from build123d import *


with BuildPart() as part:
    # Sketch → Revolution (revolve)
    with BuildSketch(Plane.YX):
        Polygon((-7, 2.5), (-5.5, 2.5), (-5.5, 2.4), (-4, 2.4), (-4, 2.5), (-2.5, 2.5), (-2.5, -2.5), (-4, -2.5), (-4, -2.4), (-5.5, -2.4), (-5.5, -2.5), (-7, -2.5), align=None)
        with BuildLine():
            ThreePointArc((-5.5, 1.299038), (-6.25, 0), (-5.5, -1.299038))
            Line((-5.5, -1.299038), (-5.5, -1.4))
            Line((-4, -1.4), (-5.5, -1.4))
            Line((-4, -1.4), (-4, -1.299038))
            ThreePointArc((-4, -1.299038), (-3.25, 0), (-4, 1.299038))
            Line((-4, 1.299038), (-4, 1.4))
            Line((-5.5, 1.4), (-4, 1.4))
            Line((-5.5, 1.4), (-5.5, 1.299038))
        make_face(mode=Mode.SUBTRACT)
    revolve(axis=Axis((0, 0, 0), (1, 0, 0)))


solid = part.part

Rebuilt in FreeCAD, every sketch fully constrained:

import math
import FreeCAD as App
import Part
import Sketcher

V = App.Vector
Q = App.Units.Quantity

doc = App.newDocument("Part")
body = doc.addObject("PartDesign::Body", "Body")

# Sketch on XY plane
sketch1 = body.newObject("Sketcher::SketchObject", "Sketch")
sketch1.AttachmentSupport = (doc.getObject("XY_Plane"), [""])
sketch1.MapMode = "FlatFace"
sketch1.addGeometry([
    Part.LineSegment(V(2.5, -5.5, 0), V(2.5, -7, 0)),  # 0
    Part.LineSegment(V(2.5, -7, 0), V(-2.5, -7, 0)),  # 1
    Part.LineSegment(V(-2.5, -7, 0), V(-2.5, -5.5, 0)),  # 2
    Part.LineSegment(V(-2.5, -5.5, 0), V(-2.4, -5.5, 0)),  # 3
    Part.LineSegment(V(-2.4, -5.5, 0), V(-2.4, -4, 0)),  # 4
    Part.LineSegment(V(-2.4, -4, 0), V(-2.5, -4, 0)),  # 5
    Part.LineSegment(V(-2.5, -4, 0), V(-2.5, -2.5, 0)),  # 6
    Part.LineSegment(V(-2.5, -2.5, 0), V(2.5, -2.5, 0)),  # 7
    Part.LineSegment(V(2.5, -2.5, 0), V(2.5, -4, 0)),  # 8
    Part.LineSegment(V(2.5, -4, 0), V(2.4, -4, 0)),  # 9
    Part.LineSegment(V(2.4, -4, 0), V(2.4, -5.5, 0)),  # 10
    Part.LineSegment(V(2.4, -5.5, 0), V(2.5, -5.5, 0)),  # 11
    Part.LineSegment(V(1.299038, -5.5, 0), V(1.4, -5.5, 0)),  # 12
    Part.LineSegment(V(1.4, -5.5, 0), V(1.4, -4, 0)),  # 13
    Part.LineSegment(V(1.4, -4, 0), V(1.299038, -4, 0)),  # 14
    Part.ArcOfCircle(Part.Circle(V(0, -4.75, 0), V(0, 0, 1), 1.5), math.radians(29.999996), math.radians(150.000004)),  # 15
    Part.LineSegment(V(-1.299038, -4, 0), V(-1.4, -4, 0)),  # 16
    Part.LineSegment(V(-1.4, -4, 0), V(-1.4, -5.5, 0)),  # 17
    Part.LineSegment(V(-1.4, -5.5, 0), V(-1.299038, -5.5, 0)),  # 18
    Part.ArcOfCircle(Part.Circle(V(0, -4.75, 0), V(0, 0, 1), 1.5), math.radians(-150.000004), math.radians(-29.999996)),  # 19
], False)
sketch1.addConstraint([
    Sketcher.Constraint("Coincident", 0, 2, 1, 1),
    Sketcher.Constraint("Coincident", 1, 2, 2, 1),
    Sketcher.Constraint("Coincident", 2, 2, 3, 1),
    Sketcher.Constraint("Coincident", 3, 2, 4, 1),
    Sketcher.Constraint("Coincident", 4, 2, 5, 1),
    Sketcher.Constraint("Coincident", 5, 2, 6, 1),
    Sketcher.Constraint("Coincident", 6, 2, 7, 1),
    Sketcher.Constraint("Coincident", 7, 2, 8, 1),
    Sketcher.Constraint("Coincident", 8, 2, 9, 1),
    Sketcher.Constraint("Coincident", 9, 2, 10, 1),
    Sketcher.Constraint("Coincident", 10, 2, 11, 1),
    Sketcher.Constraint("Coincident", 11, 2, 0, 1),
    Sketcher.Constraint("Coincident", 12, 2, 13, 1),
    Sketcher.Constraint("Coincident", 13, 2, 14, 1),
    Sketcher.Constraint("Coincident", 14, 2, 15, 1),
    Sketcher.Constraint("Coincident", 15, 2, 16, 1),
    Sketcher.Constraint("Coincident", 16, 2, 17, 1),
    Sketcher.Constraint("Coincident", 17, 2, 18, 1),
    Sketcher.Constraint("Coincident", 18, 2, 19, 1),
    Sketcher.Constraint("Coincident", 19, 2, 12, 1),
    Sketcher.Constraint("Vertical", 0),
    Sketcher.Constraint("Horizontal", 1),
    Sketcher.Constraint("Vertical", 2),
    Sketcher.Constraint("Horizontal", 3),
    Sketcher.Constraint("Vertical", 4),
    Sketcher.Constraint("Horizontal", 5),
    Sketcher.Constraint("Vertical", 6),
    Sketcher.Constraint("Horizontal", 7),
    Sketcher.Constraint("Vertical", 8),
    Sketcher.Constraint("Horizontal", 9),
    Sketcher.Constraint("Vertical", 10),
    Sketcher.Constraint("Horizontal", 11),
    Sketcher.Constraint("Horizontal", 12),
    Sketcher.Constraint("Vertical", 13),
    Sketcher.Constraint("Horizontal", 14),
    Sketcher.Constraint("Horizontal", 16),
    Sketcher.Constraint("Vertical", 17),
    Sketcher.Constraint("Horizontal", 18),
    Sketcher.Constraint("Coincident", 19, 3, 15, 3),
    Sketcher.Constraint("Equal", 15, 19),
    Sketcher.Constraint("Symmetric", 5, 2, 8, 2, -2),
    Sketcher.Constraint("Symmetric", 3, 2, 10, 2, -2),
    Sketcher.Constraint("Symmetric", 14, 2, 15, 2, -2),
    Sketcher.Constraint("Symmetric", 12, 2, 17, 2, -2),
    Sketcher.Constraint("Horizontal", 11, 2, 12, 2),
    Sketcher.Constraint("Horizontal", 9, 2, 13, 2),
    Sketcher.Constraint("Vertical", 2, 2, 5, 2),
    Sketcher.Constraint("Vertical", 0, 2, 7, 2),
    Sketcher.Constraint("Vertical", 15, 2, 18, 2),
    Sketcher.Constraint("Equal", 2, 4),
    Sketcher.Constraint("Equal", 4, 6),
    Sketcher.Constraint("Radius", 15, Q("1.5 mm")),
    Sketcher.Constraint("DistanceX", 1, 2, 1, 1, Q("5 mm")),
    Sketcher.Constraint("DistanceX", 3, 1, 3, 2, Q("0.1 mm")),
    Sketcher.Constraint("DistanceY", 0, 2, 0, 1, Q("1.5 mm")),
    Sketcher.Constraint("DistanceY", 0, 2, -1, 1, Q("7 mm")),
    Sketcher.Constraint("DistanceX", 12, 2, 10, 2, Q("1 mm")),
])
revolution = body.newObject("PartDesign::Revolution", "Revolution")
revolution.Profile = sketch1
revolution.ReferenceAxis = (sketch1, ["H_Axis"])
revolution.Angle = 360

doc.recompute()
